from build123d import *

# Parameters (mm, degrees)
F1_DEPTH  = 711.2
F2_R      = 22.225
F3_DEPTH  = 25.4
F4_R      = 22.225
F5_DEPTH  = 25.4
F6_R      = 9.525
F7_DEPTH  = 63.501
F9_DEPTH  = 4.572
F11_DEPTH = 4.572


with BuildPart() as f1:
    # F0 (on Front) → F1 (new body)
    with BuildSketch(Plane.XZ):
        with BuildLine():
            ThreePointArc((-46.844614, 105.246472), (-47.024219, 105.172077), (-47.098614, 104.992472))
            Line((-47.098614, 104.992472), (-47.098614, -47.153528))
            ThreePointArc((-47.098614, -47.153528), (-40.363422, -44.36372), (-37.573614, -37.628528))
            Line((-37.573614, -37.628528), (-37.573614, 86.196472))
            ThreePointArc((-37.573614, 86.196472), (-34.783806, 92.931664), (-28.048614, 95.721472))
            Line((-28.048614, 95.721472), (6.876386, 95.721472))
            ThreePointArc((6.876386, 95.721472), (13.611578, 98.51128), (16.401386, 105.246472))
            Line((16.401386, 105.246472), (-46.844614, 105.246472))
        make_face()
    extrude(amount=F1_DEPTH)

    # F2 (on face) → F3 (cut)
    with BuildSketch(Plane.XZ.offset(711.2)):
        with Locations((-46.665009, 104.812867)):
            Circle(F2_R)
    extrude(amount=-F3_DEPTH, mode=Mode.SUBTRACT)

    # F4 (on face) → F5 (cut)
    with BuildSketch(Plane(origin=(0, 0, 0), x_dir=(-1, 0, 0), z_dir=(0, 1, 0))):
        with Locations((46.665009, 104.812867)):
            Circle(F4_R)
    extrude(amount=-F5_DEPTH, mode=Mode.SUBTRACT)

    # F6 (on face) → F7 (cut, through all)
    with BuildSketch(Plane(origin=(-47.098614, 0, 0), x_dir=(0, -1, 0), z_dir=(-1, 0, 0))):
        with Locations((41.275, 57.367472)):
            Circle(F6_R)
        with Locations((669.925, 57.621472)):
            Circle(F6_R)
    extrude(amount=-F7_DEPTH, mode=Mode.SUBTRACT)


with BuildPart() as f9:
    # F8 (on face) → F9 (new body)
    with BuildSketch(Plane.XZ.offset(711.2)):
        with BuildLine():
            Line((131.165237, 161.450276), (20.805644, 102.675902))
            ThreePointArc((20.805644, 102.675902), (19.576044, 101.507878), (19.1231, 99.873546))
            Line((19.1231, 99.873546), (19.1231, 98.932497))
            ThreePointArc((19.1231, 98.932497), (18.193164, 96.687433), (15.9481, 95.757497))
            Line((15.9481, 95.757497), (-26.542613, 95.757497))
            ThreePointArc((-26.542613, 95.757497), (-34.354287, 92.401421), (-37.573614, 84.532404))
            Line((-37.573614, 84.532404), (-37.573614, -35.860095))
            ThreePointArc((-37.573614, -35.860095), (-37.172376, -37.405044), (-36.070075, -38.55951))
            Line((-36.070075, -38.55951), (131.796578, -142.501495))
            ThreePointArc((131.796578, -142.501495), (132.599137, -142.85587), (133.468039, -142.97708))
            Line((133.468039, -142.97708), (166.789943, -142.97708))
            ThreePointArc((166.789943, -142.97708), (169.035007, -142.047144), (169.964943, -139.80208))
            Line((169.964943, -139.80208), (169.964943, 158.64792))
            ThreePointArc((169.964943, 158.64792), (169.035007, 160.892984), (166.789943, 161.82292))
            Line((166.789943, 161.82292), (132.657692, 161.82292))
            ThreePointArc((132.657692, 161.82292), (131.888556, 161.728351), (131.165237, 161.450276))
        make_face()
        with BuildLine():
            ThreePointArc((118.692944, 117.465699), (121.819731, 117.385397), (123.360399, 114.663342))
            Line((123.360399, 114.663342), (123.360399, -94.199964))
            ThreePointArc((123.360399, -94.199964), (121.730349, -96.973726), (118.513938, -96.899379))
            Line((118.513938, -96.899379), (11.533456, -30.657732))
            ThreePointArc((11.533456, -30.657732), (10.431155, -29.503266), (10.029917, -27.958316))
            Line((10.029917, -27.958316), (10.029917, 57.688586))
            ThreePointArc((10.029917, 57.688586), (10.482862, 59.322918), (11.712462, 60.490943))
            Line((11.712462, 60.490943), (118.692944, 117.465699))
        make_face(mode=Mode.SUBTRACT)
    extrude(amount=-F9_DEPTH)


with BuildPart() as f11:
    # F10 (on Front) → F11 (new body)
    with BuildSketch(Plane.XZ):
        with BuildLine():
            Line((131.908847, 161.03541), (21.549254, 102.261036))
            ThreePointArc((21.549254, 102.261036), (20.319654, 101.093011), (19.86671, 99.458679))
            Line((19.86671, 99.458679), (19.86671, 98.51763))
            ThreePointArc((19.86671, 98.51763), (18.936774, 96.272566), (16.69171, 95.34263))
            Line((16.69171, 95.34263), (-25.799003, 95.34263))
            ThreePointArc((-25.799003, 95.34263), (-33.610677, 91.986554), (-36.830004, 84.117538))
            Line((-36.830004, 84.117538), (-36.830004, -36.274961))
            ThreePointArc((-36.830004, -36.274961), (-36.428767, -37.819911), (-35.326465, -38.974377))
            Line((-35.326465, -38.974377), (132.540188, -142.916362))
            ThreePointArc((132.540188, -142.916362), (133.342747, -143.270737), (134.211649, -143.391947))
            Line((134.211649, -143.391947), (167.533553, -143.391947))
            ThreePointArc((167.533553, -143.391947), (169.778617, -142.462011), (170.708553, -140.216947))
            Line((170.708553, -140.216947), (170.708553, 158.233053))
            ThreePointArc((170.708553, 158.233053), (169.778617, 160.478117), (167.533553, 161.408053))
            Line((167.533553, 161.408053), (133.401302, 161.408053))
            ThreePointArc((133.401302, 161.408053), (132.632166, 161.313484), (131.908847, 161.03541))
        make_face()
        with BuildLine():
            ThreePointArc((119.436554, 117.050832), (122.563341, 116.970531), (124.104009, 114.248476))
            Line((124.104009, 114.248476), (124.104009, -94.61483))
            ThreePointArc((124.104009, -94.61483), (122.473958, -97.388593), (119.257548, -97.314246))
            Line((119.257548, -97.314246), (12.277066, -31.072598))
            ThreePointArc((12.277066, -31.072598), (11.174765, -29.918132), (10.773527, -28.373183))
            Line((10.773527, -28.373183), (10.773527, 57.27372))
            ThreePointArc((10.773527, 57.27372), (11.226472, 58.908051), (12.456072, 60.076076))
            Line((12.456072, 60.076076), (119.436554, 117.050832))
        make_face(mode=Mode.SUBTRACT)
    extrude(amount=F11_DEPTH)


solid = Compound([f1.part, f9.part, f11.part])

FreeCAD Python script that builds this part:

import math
import FreeCAD as App
import Part
import Sketcher

V = App.Vector
Q = App.Units.Quantity

doc = App.newDocument("Part")
body = doc.addObject("PartDesign::Body", "Body")

# Sketch on XZ plane
sketch1 = body.newObject("Sketcher::SketchObject", "Sketch")
sketch1.AttachmentSupport = (doc.getObject("XZ_Plane"), [""])
sketch1.MapMode = "FlatFace"
sketch1.addGeometry([
    Part.ArcOfCircle(Part.Circle(V(-46.844614, 104.992472, 0), V(0, 0, 1), 0.254), math.radians(90.000094), math.radians(179.999906)),  # 0
    Part.LineSegment(V(-47.098614, 104.992472, 0), V(-47.098614, -47.153528, 0)),  # 1
    Part.ArcOfCircle(Part.Circle(V(-47.098614, -37.628528, 0), V(0, 0, 1), 9.525), math.radians(-89.999998), math.radians(-0.000002)),  # 2
    Part.LineSegment(V(-37.573614, -37.628528, 0), V(-37.573614, 86.196472, 0)),  # 3
    Part.ArcOfCircle(Part.Circle(V(-28.048614, 86.196472, 0), V(0, 0, 1), 9.525), math.radians(90.000002), math.radians(179.999998)),  # 4
    Part.LineSegment(V(-28.048614, 95.721472, 0), V(6.876386, 95.721472, 0)),  # 5
    Part.ArcOfCircle(Part.Circle(V(6.876386, 105.246472, 0), V(0, 0, 1), 9.525), math.radians(-89.999998), math.radians(-0.000002)),  # 6
    Part.LineSegment(V(16.401386, 105.246472, 0), V(-46.844614, 105.246472, 0)),  # 7
], False)
sketch1.addConstraint([
    Sketcher.Constraint("Tangent", 0, 2, 1, 1),
    Sketcher.Constraint("Coincident", 1, 2, 2, 1),
    Sketcher.Constraint("Tangent", 2, 2, 3, 1),
    Sketcher.Constraint("Tangent", 3, 2, 4, 2),
    Sketcher.Constraint("Tangent", 4, 1, 5, 1),
    Sketcher.Constraint("Tangent", 5, 2, 6, 1),
    Sketcher.Constraint("Coincident", 6, 2, 7, 1),
    Sketcher.Constraint("Tangent", 7, 2, 0, 1),
    Sketcher.Constraint("Vertical", 1),
    Sketcher.Constraint("Vertical", 3),
    Sketcher.Constraint("Horizontal", 5),
    Sketcher.Constraint("Horizontal", 7),
    Sketcher.Constraint("Equal", 2, 4),
    Sketcher.Constraint("Equal", 4, 6),
    Sketcher.Constraint("Vertical", 2, 3, 0, 2),
    Sketcher.Constraint("Radius", 0, Q("0.01 in")),
    Sketcher.Constraint("Radius", 2, Q("0.375 in")),
    Sketcher.Constraint("DistanceY", 1, 2, 6, 3, Q("6 in")),
    Sketcher.Constraint("DistanceX", 7, 2, 7, 1, Q("2.49 in")),
    Sketcher.Constraint("DistanceY", 1, 2, 1, 1, Q("5.99 in")),
    Sketcher.Constraint("DistanceY", -1, 1, 0, 3, 104.992472),
    Sketcher.Constraint("DistanceX", 0, 3, -1, 1, 46.844614),
])
pad1 = body.newObject("PartDesign::Pad", "Pad")
pad1.Profile = sketch1
pad1.Length = Q("28 in")

# Sketch on XZ plane
sketch2 = body.newObject("Sketcher::SketchObject", "Sketch001")
sketch2.AttachmentSupport = (doc.getObject("XZ_Plane"), [""])
sketch2.MapMode = "FlatFace"
sketch2.AttachmentOffset = App.Placement(V(0, 0, 28 * 25.4), App.Rotation())
sketch2.addGeometry(Part.Circle(V(-46.665009, 104.812867, 0), V(0, 0, 1), 22.225), False)
sketch2.addConstraint([
    Sketcher.Constraint("Diameter", 0, Q("1.75 in")),
    Sketcher.Constraint("DistanceX", 0, 3, -1, 1, 46.665009),
    Sketcher.Constraint("DistanceY", -1, 1, 0, 3, 104.812867),
])
pocket1 = body.newObject("PartDesign::Pocket", "Pocket")
pocket1.Profile = sketch2
pocket1.Length = Q("1 in")

# Sketch on XZ plane
sketch3 = body.newObject("Sketcher::SketchObject", "Sketch002")
sketch3.AttachmentSupport = (doc.getObject("XZ_Plane"), [""])
sketch3.MapMode = "FlatFace"
sketch3.addGeometry(Part.Circle(V(-46.665009, 104.812867, 0), V(0, 0, 1), 22.225), False)
sketch3.addConstraint([
    Sketcher.Constraint("Diameter", 0, Q("1.75 in")),
    Sketcher.Constraint("DistanceX", 0, 3, -1, 1, 46.665009),
    Sketcher.Constraint("DistanceY", -1, 1, 0, 3, 104.812867),
])
pocket2 = body.newObject("PartDesign::Pocket", "Pocket001")
pocket2.Profile = sketch3
pocket2.Length = Q("1 in")
pocket2.Reversed = True

# Sketch on YZ plane
sketch4 = body.newObject("Sketcher::SketchObject", "Sketch003")
sketch4.AttachmentSupport = (doc.getObject("YZ_Plane"), [""])
sketch4.MapMode = "FlatFace"
sketch4.AttachmentOffset = App.Placement(V(0, 0, -47.098614), App.Rotation())
sketch4.addGeometry([
    Part.Circle(V(-41.275, 57.367472, 0), V(0, 0, 1), 9.525),
    Part.Circle(V(-669.925, 57.621472, 0), V(0, 0, 1), 9.525),
], False)
sketch4.addConstraint([
    Sketcher.Constraint("Equal", 0, 1),
    Sketcher.Constraint("Diameter", 0, Q("0.75 in")),
    Sketcher.Constraint("DistanceX", 1, 3, 0, 3, Q("24.75 in")),
    Sketcher.Constraint("DistanceY", 0, 3, 1, 3, Q("0.01 in")),
    Sketcher.Constraint("DistanceX", 0, 3, -1, 1, Q("1.625 in")),
    Sketcher.Constraint("DistanceY", -1, 1, 1, 3, 57.621472),
])
pocket3 = body.newObject("PartDesign::Pocket", "Pocket002")
pocket3.Profile = sketch4
pocket3.Type = "ThroughAll"
pocket3.Reversed = True
body2 = doc.addObject("PartDesign::Body", "Body001")

# Sketch on XZ plane
sketch5 = body2.newObject("Sketcher::SketchObject", "Sketch004")
sketch5.AttachmentSupport = (doc.getObject("XZ_Plane001"), [""])
sketch5.MapMode = "FlatFace"
sketch5.AttachmentOffset = App.Placement(V(0, 0, 28 * 25.4), App.Rotation())
sketch5.addGeometry([
    Part.LineSegment(V(131.165237, 161.450276, 0), V(20.805644, 102.675902, 0)),  # 0
    Part.ArcOfCircle(Part.Circle(V(22.298095, 99.873549, 0), V(0, 0, 1), 3.174995), math.radians(118.038452), math.radians(180.000053)),  # 1
    Part.LineSegment(V(19.1231, 99.873546, 0), V(19.1231, 98.932497, 0)),  # 2
    Part.ArcOfCircle(Part.Circle(V(15.9481, 98.932497, 0), V(0, 0, 1), 3.175), math.radians(-89.999998), math.radians(-0.000002)),  # 3
    Part.LineSegment(V(15.9481, 95.757497, 0), V(-26.542613, 95.757497, 0)),  # 4
    Part.ArcOfCircle(Part.Circle(V(-26.346815, 84.532405, 0), V(0, 0, 1), 11.226799), math.radians(90.999304), math.radians(180.000006)),  # 5
    Part.LineSegment(V(-37.573614, 84.532404, 0), V(-37.573614, -35.860095, 0)),  # 6
    Part.ArcOfCircle(Part.Circle(V(-34.398613, -35.860094, 0), V(0, 0, 1), 3.175001), math.radians(-179.999984), math.radians(-121.765541)),  # 7
    Part.LineSegment(V(-36.070075, -38.55951, 0), V(131.796578, -142.501495, 0)),  # 8
    Part.ArcOfCircle(Part.Circle(V(133.46804, -139.80208, 0), V(0, 0, 1), 3.175), math.radians(-121.765542), math.radians(-90.00001)),  # 9
    Part.LineSegment(V(133.468039, -142.97708, 0), V(166.789943, -142.97708, 0)),  # 10
    Part.ArcOfCircle(Part.Circle(V(166.789943, -139.80208, 0), V(0, 0, 1), 3.175), math.radians(-89.999998), math.radians(-0.000002)),  # 11
    Part.LineSegment(V(169.964943, -139.80208, 0), V(169.964943, 158.64792, 0)),  # 12
    Part.ArcOfCircle(Part.Circle(V(166.789943, 158.64792, 0), V(0, 0, 1), 3.175), math.radians(0.000002), math.radians(89.999998)),  # 13
    Part.LineSegment(V(166.789943, 161.82292, 0), V(132.657692, 161.82292, 0)),  # 14
    Part.ArcOfCircle(Part.Circle(V(132.65769, 158.647932, 0), V(0, 0, 1), 3.174988), math.radians(89.999969), math.radians(118.038569)),  # 15
    Part.LineSegment(V(11.712462, 60.490943, 0), V(118.692944, 117.465699, 0)),  # 16
    Part.ArcOfCircle(Part.Circle(V(120.185399, 114.663342, 0), V(0, 0, 1), 3.175), math.radians(0.000005), math.radians(118.038477)),  # 17
    Part.LineSegment(V(123.360399, 114.663342, 0), V(123.360399, -94.199964, 0)),  # 18
    Part.ArcOfCircle(Part.Circle(V(120.185399, -94.199964, 0), V(0, 0, 1), 3.175), math.radians(-121.765546), math.radians(0.000008)),  # 19
    Part.LineSegment(V(118.513938, -96.899379, 0), V(11.533456, -30.657732, 0)),  # 20
    Part.ArcOfCircle(Part.Circle(V(13.204918, -27.958316, 0), V(0, 0, 1), 3.175001), math.radians(179.999998), math.radians(238.234459)),  # 21
    Part.LineSegment(V(10.029917, -27.958316, 0), V(10.029917, 57.688586, 0)),  # 22
    Part.ArcOfCircle(Part.Circle(V(13.204918, 57.688585, 0), V(0, 0, 1), 3.175001), math.radians(118.038503), math.radians(179.99999)),  # 23
], False)
sketch5.addConstraint([
    Sketcher.Constraint("Tangent", 0, 2, 1, 1),
    Sketcher.Constraint("Tangent", 1, 2, 2, 1),
    Sketcher.Constraint("Tangent", 2, 2, 3, 2),
    Sketcher.Constraint("Tangent", 3, 1, 4, 1),
    Sketcher.Constraint("Coincident", 4, 2, 5, 1),
    Sketcher.Constraint("Tangent", 5, 2, 6, 1),
    Sketcher.Constraint("Tangent", 6, 2, 7, 1),
    Sketcher.Constraint("Tangent", 7, 2, 8, 1),
    Sketcher.Constraint("Tangent", 8, 2, 9, 1),
    Sketcher.Constraint("Tangent", 9, 2, 10, 1),
    Sketcher.Constraint("Tangent", 10, 2, 11, 1),
    Sketcher.Constraint("Tangent", 11, 2, 12, 1),
    Sketcher.Constraint("Tangent", 12, 2, 13, 1),
    Sketcher.Constraint("Tangent", 13, 2, 14, 1),
    Sketcher.Constraint("Tangent", 14, 2, 15, 1),
    Sketcher.Constraint("Tangent", 15, 2, 0, 1),
    Sketcher.Constraint("Tangent", 16, 2, 17, 2),
    Sketcher.Constraint("Tangent", 17, 1, 18, 1),
    Sketcher.Constraint("Tangent", 18, 2, 19, 2),
    Sketcher.Constraint("Tangent", 19, 1, 20, 1),
    Sketcher.Constraint("Tangent", 20, 2, 21, 2),
    Sketcher.Constraint("Tangent", 21, 1, 22, 1),
    Sketcher.Constraint("Tangent", 22, 2, 23, 2),
    Sketcher.Constraint("Tangent", 23, 1, 16, 1),
    Sketcher.Constraint("Vertical", 2),
    Sketcher.Constraint("Horizontal", 4),
    Sketcher.Constraint("Vertical", 6),
    Sketcher.Constraint("Horizontal", 10),
    Sketcher.Constraint("Vertical", 12),
    Sketcher.Constraint("Horizontal", 14),
    Sketcher.Constraint("Vertical", 18),
    Sketcher.Constraint("Vertical", 22),
    Sketcher.Constraint("Equal", 3, 7),
    Sketcher.Constraint("Equal", 7, 9),
    Sketcher.Constraint("Equal", 9, 11),
    Sketcher.Constraint("Equal", 11, 13),
    Sketcher.Constraint("Equal", 13, 17),
    Sketcher.Constraint("Equal", 17, 19),
    Sketcher.Constraint("Equal", 19, 21),
    Sketcher.Constraint("Equal", 21, 23),
    Sketcher.Constraint("Parallel", 0, 16),
    Sketcher.Constraint("Parallel", 8, 20),
    Sketcher.Constraint("Radius", 3, Q("0.125 in")),
    Sketcher.Constraint("Radius", 5, Q("0.442 in")),
    Sketcher.Constraint("DistanceY", 12, 1, 12, 2, Q("11.75 in")),
    Sketcher.Constraint("DistanceY", 6, 2, 6, 1, 120.392499),
    Sketcher.Constraint("DistanceY", 22, 1, 22, 2, 85.646902),
    Sketcher.Constraint("Radius", 1, 3.174995),
    Sketcher.Constraint("Radius", 15, 3.174988),
    Sketcher.Constraint("DistanceX", 14, 2, 14, 1, 34.132251),
    Sketcher.Constraint("DistanceY", 2, 2, 2, 1, 0.941049),
    Sketcher.Constraint("DistanceX", -1, 1, 3, 3, 15.9481),
    Sketcher.Constraint("DistanceX", -1, 1, 17, 3, 120.185399),
    Sketcher.Constraint("DistanceY", -1, 1, 0, 2, 102.675902),
    Sketcher.Constraint("DistanceY", -1, 1, 16, 2, 117.465699),
    Sketcher.Constraint("DistanceX", 4, 2, 5, 3, 0.195798),
    Sketcher.Constraint("DistanceX", 0, 2, 12, 2, 149.159299),
    Sketcher.Constraint("DistanceX", 19, 1, 9, 3, 14.954102),
    Sketcher.Constraint("DistanceY", 9, 3, 19, 1, 42.902701),
    Sketcher.Constraint("Distance", 8, 197.441509),
    Sketcher.Constraint("DistanceX", 4, 2, 4, 1, 42.490713),
])
pad2 = body2.newObject("PartDesign::Pad", "Pad001")
pad2.Profile = sketch5
pad2.Length = Q("0.18 in")
pad2.Reversed = True
body3 = doc.addObject("PartDesign::Body", "Body002")

# Sketch on XZ plane
sketch6 = body3.newObject("Sketcher::SketchObject", "Sketch005")
sketch6.AttachmentSupport = (doc.getObject("XZ_Plane002"), [""])
sketch6.MapMode = "FlatFace"
sketch6.addGeometry([
    Part.LineSegment(V(131.908847, 161.03541, 0), V(21.549254, 102.261036, 0)),  # 0
    Part.ArcOfCircle(Part.Circle(V(23.041708, 99.458681, 0), V(0, 0, 1), 3.174998), math.radians(118.038485), math.radians(180.000038)),  # 1
    Part.LineSegment(V(19.86671, 99.458679, 0), V(19.86671, 98.51763, 0)),  # 2
    Part.ArcOfCircle(Part.Circle(V(16.69171, 98.51763, 0), V(0, 0, 1), 3.175), math.radians(-89.999998), math.radians(-0.000002)),  # 3
    Part.LineSegment(V(16.69171, 95.34263, 0), V(-25.799003, 95.34263, 0)),  # 4
    Part.ArcOfCircle(Part.Circle(V(-25.603205, 84.117538, 0), V(0, 0, 1), 11.226799), math.radians(90.999304), math.radians(180.000001)),  # 5
    Part.LineSegment(V(-36.830004, 84.117538, 0), V(-36.830004, -36.274961, 0)),  # 6
    Part.ArcOfCircle(Part.Circle(V(-33.655009, -36.274964, 0), V(0, 0, 1), 3.174995), math.radians(179.999937), math.radians(238.234519)),  # 7
    Part.LineSegment(V(-35.326465, -38.974377, 0), V(132.540188, -142.916362, 0)),  # 8
    Part.ArcOfCircle(Part.Circle(V(134.21165, -140.216947, 0), V(0, 0, 1), 3.175), math.radians(-121.765542), math.radians(-90.00001)),  # 9
    Part.LineSegment(V(134.211649, -143.391947, 0), V(167.533553, -143.391947, 0)),  # 10
    Part.ArcOfCircle(Part.Circle(V(167.533553, -140.216947, 0), V(0, 0, 1), 3.175), math.radians(-89.999998), math.radians(-0.000002)),  # 11
    Part.LineSegment(V(170.708553, -140.216947, 0), V(170.708553, 158.233053, 0)),  # 12
    Part.ArcOfCircle(Part.Circle(V(167.533553, 158.233053, 0), V(0, 0, 1), 3.175), math.radians(0.000002), math.radians(89.999998)),  # 13
    Part.LineSegment(V(167.533553, 161.408053, 0), V(133.401302, 161.408053, 0)),  # 14
    Part.ArcOfCircle(Part.Circle(V(133.401302, 158.23305, 0), V(0, 0, 1), 3.175003), math.radians(90.000002), math.radians(118.038464)),  # 15
    Part.LineSegment(V(12.456072, 60.076076, 0), V(119.436554, 117.050832, 0)),  # 16
    Part.ArcOfCircle(Part.Circle(V(120.92901, 114.248476, 0), V(0, 0, 1), 3.174999), math.radians(-0.000004), math.radians(118.038504)),  # 17
    Part.LineSegment(V(124.104009, 114.248476, 0), V(124.104009, -94.61483, 0)),  # 18
    Part.ArcOfCircle(Part.Circle(V(120.929009, -94.614831, 0), V(0, 0, 1), 3.175), math.radians(-121.765531), math.radians(0.000011)),  # 19
    Part.LineSegment(V(119.257548, -97.314246, 0), V(12.277066, -31.072598, 0)),  # 20
    Part.ArcOfCircle(Part.Circle(V(13.948528, -28.373182, 0), V(0, 0, 1), 3.175001), math.radians(-179.999984), math.radians(-121.765541)),  # 21
    Part.LineSegment(V(10.773527, -28.373183, 0), V(10.773527, 57.27372, 0)),  # 22
    Part.ArcOfCircle(Part.Circle(V(13.948528, 57.273718, 0), V(0, 0, 1), 3.175001), math.radians(118.038503), math.radians(179.999972)),  # 23
], False)
sketch6.addConstraint([
    Sketcher.Constraint("Tangent", 0, 2, 1, 1),
    Sketcher.Constraint("Tangent", 1, 2, 2, 1),
    Sketcher.Constraint("Tangent", 2, 2, 3, 2),
    Sketcher.Constraint("Tangent", 3, 1, 4, 1),
    Sketcher.Constraint("Coincident", 4, 2, 5, 1),
    Sketcher.Constraint("Tangent", 5, 2, 6, 1),
    Sketcher.Constraint("Tangent", 6, 2, 7, 1),
    Sketcher.Constraint("Tangent", 7, 2, 8, 1),
    Sketcher.Constraint("Tangent", 8, 2, 9, 1),
    Sketcher.Constraint("Tangent", 9, 2, 10, 1),
    Sketcher.Constraint("Tangent", 10, 2, 11, 1),
    Sketcher.Constraint("Tangent", 11, 2, 12, 1),
    Sketcher.Constraint("Tangent", 12, 2, 13, 1),
    Sketcher.Constraint("Tangent", 13, 2, 14, 1),
    Sketcher.Constraint("Tangent", 14, 2, 15, 1),
    Sketcher.Constraint("Tangent", 15, 2, 0, 1),
    Sketcher.Constraint("Tangent", 16, 2, 17, 2),
    Sketcher.Constraint("Tangent", 17, 1, 18, 1),
    Sketcher.Constraint("Tangent", 18, 2, 19, 2),
    Sketcher.Constraint("Tangent", 19, 1, 20, 1),
    Sketcher.Constraint("Tangent", 20, 2, 21, 2),
    Sketcher.Constraint("Tangent", 21, 1, 22, 1),
    Sketcher.Constraint("Tangent", 22, 2, 23, 2),
    Sketcher.Constraint("Tangent", 23, 1, 16, 1),
    Sketcher.Constraint("Vertical", 2),
    Sketcher.Constraint("Horizontal", 4),
    Sketcher.Constraint("Vertical", 6),
    Sketcher.Constraint("Horizontal", 10),
    Sketcher.Constraint("Vertical", 12),
    Sketcher.Constraint("Horizontal", 14),
    Sketcher.Constraint("Vertical", 18),
    Sketcher.Constraint("Vertical", 22),
    Sketcher.Constraint("Equal", 3, 9),
    Sketcher.Constraint("Equal", 9, 11),
    Sketcher.Constraint("Equal", 11, 13),
    Sketcher.Constraint("Equal", 13, 17),
    Sketcher.Constraint("Equal", 17, 19),
    Sketcher.Constraint("Equal", 19, 21),
    Sketcher.Constraint("Equal", 21, 23),
    Sketcher.Constraint("Parallel", 0, 16),
    Sketcher.Constraint("Parallel", 8, 20),
    Sketcher.Constraint("Radius", 1, Q("0.1249999 in")),
    Sketcher.Constraint("Radius", 3, Q("0.125 in")),
    Sketcher.Constraint("Radius", 5, Q("0.442 in")),
    Sketcher.Constraint("Radius", 7, Q("0.1249998 in")),
    Sketcher.Constraint("Radius", 15, Q("0.1250001 in")),
    Sketcher.Constraint("DistanceY", 12, 1, 12, 2, Q("11.75 in")),
    Sketcher.Constraint("DistanceX", 5, 2, -1, 1, Q("1.4500002 in")),
    Sketcher.Constraint("DistanceY", 6, 2, 6, 1, 120.392499),
    Sketcher.Constraint("DistanceY", -1, 1, 23, 1, Q("2.3651998 in")),
    Sketcher.Constraint("DistanceX", 14, 2, 14, 1, 34.132251),
    Sketcher.Constraint("DistanceY", 2, 2, 2, 1, 0.941049),
    Sketcher.Constraint("DistanceX", -1, 1, 14, 2, 133.401302),
    Sketcher.Constraint("DistanceX", 1, 3, 17, 3, 97.887302),
    Sketcher.Constraint("DistanceY", 21, 3, 23, 3, 85.646901),
    Sketcher.Constraint("DistanceX", 4, 2, 5, 3, 0.195798),
    Sketcher.Constraint("DistanceX", 0, 2, 12, 2, 149.159299),
    Sketcher.Constraint("DistanceX", 19, 1, 9, 3, 14.954102),
    Sketcher.Constraint("DistanceY", 9, 3, 19, 1, 42.902701),
    Sketcher.Constraint("Distance", 8, 197.441509),
    Sketcher.Constraint("DistanceY", 18, 2, 18, 1, 208.863306),
])
pad3 = body3.newObject("PartDesign::Pad", "Pad002")
pad3.Profile = sketch6
pad3.Length = Q("0.18 in")

doc.recompute()
